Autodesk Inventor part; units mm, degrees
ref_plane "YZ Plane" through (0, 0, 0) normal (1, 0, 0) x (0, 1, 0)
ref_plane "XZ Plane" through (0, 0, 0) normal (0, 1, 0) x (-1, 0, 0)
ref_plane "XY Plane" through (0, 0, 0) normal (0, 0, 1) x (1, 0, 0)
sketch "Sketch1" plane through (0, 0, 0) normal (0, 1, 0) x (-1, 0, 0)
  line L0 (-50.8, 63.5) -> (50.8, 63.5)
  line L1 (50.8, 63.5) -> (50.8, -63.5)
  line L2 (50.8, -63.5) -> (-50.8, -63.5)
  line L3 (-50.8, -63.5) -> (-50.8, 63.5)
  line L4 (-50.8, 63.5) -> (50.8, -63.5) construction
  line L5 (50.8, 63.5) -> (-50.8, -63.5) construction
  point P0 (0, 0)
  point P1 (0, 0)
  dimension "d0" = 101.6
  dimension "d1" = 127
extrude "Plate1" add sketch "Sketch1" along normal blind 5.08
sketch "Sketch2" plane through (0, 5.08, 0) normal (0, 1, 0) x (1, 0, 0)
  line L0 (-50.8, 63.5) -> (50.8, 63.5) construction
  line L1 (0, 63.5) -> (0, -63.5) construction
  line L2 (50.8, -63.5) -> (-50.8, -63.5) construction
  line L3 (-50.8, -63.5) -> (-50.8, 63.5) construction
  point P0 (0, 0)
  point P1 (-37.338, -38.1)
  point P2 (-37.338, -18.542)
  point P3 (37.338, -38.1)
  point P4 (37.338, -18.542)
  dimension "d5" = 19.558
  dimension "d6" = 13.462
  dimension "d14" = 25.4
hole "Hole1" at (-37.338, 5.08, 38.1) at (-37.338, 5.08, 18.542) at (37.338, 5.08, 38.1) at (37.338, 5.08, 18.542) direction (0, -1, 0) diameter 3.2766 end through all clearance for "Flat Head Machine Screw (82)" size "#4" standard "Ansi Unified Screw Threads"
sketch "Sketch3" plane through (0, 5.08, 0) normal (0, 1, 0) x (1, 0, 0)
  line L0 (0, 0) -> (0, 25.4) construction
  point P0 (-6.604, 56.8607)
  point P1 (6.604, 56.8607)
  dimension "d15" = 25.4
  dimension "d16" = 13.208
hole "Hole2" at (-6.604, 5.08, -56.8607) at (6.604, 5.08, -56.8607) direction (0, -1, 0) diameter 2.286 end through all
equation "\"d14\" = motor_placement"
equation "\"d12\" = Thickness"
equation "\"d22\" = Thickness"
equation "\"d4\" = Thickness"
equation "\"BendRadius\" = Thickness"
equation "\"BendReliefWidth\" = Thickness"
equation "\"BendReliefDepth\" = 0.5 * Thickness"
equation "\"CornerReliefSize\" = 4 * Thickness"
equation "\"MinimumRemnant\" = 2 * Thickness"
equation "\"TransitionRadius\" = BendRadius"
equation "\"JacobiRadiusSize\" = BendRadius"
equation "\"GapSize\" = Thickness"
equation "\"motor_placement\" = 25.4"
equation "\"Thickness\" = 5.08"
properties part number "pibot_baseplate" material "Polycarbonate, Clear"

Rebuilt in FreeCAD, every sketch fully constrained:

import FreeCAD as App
import Part
import Sketcher

V = App.Vector
Q = App.Units.Quantity

doc = App.newDocument("Part")
body = doc.addObject("PartDesign::Body", "Body")

sketch1 = body.newObject("Sketcher::SketchObject", "Sketch")
sketch1.AttachmentSupport = (doc.getObject("XZ_Plane"), [""])
sketch1.MapMode = "FlatFace"
sketch1.addGeometry([
    Part.LineSegment(V(-51, 64, 0), V(51, 64, 0)),
    Part.LineSegment(V(51, 64, 0), V(51, -64, 0)),
    Part.LineSegment(V(51, -64, 0), V(-51, -64, 0)),
    Part.LineSegment(V(-51, -64, 0), V(-51, 64, 0)),
], False)
sketch1.addConstraint([
    Sketcher.Constraint("Coincident", 0, 2, 1, 1),
    Sketcher.Constraint("Coincident", 1, 2, 2, 1),
    Sketcher.Constraint("Coincident", 2, 2, 3, 1),
    Sketcher.Constraint("Coincident", 3, 2, 0, 1),
    Sketcher.Constraint("Horizontal", 0),
    Sketcher.Constraint("Vertical", 1),
    Sketcher.Constraint("Horizontal", 2),
    Sketcher.Constraint("Vertical", 3),
    Sketcher.Constraint("Symmetric", 0, 2, 2, 2, -1, 1),
    Sketcher.Constraint("DistanceX", 0, 1, 0, 2, Q("4 in")),
    Sketcher.Constraint("DistanceY", 1, 2, 1, 1, Q("5 in")),
])
pad1 = body.newObject("PartDesign::Pad", "Pad")
pad1.Profile = sketch1
pad1.Length = Q("0.2 in")
pad1.Reversed = True

sketch2 = body.newObject("Sketcher::SketchObject", "Sketch001")
sketch2.AttachmentSupport = (doc.getObject("XZ_Plane"), [""])
sketch2.MapMode = "FlatFace"
sketch2.AttachmentOffset = App.Placement(V(0, 0, -0.2 * 25.4), App.Rotation())
sketch2.addGeometry([
    Part.Circle(V(-37.3, 38.1, 0), V(0, 0, 1), 1.6),
    Part.Circle(V(-37.3, 18.5, 0), V(0, 0, 1), 1.6),
    Part.Circle(V(37.3, 38.1, 0), V(0, 0, 1), 1.6),
    Part.Circle(V(37.3, 18.5, 0), V(0, 0, 1), 1.6),
], False)
sketch2.addConstraint([
    Sketcher.Constraint("Equal", 0, 1),
    Sketcher.Constraint("Equal", 1, 2),
    Sketcher.Constraint("Equal", 2, 3),
    Sketcher.Constraint("Symmetric", 0, 3, 2, 3, -2),
    Sketcher.Constraint("Symmetric", 1, 3, 3, 3, -2),
    Sketcher.Constraint("Vertical", 0, 3, 1, 3),
    Sketcher.Constraint("Diameter", 0, Q("0.129 in")),
    Sketcher.Constraint("DistanceY", -1, 1, 0, 3, Q("1.5 in")),
    Sketcher.Constraint("DistanceX", 0, 3, -1, 1, Q("1.47 in")),
    Sketcher.Constraint("DistanceY", -1, 1, 1, 3, Q("0.73 in")),
])
doc.recompute()
hole = body.newObject("PartDesign::Hole", "Hole")
hole.Profile = sketch2
hole.ThreadType = "None"
hole.Diameter = Q("0.129 in")
hole.DepthType = "ThroughAll"
hole.Reversed = True

sketch3 = body.newObject("Sketcher::SketchObject", "Sketch002")
sketch3.AttachmentSupport = (doc.getObject("XZ_Plane"), [""])
sketch3.MapMode = "FlatFace"
sketch3.AttachmentOffset = App.Placement(V(0, 0, -0.2 * 25.4), App.Rotation())
sketch3.addGeometry([
    Part.Circle(V(-6.6, -56.9, 0), V(0, 0, 1), 1.1),
    Part.Circle(V(6.6, -56.9, 0), V(0, 0, 1), 1.1),
], False)
sketch3.addConstraint([
    Sketcher.Constraint("Equal", 0, 1),
    Sketcher.Constraint("Symmetric", 0, 3, 1, 3, -2),
    Sketcher.Constraint("Diameter", 0, Q("0.09 in")),
    Sketcher.Constraint("DistanceX", 0, 3, -1, 1, Q("0.26 in")),
    Sketcher.Constraint("DistanceY", 0, 3, -1, 1, Q("2.2386 in")),
])
doc.recompute()
hole2 = body.newObject("PartDesign::Hole", "Hole001")
hole2.Profile = sketch3
hole2.ThreadType = "None"
hole2.Diameter = Q("0.09 in")
hole2.DepthType = "ThroughAll"
hole2.Reversed = True

doc.recompute()
